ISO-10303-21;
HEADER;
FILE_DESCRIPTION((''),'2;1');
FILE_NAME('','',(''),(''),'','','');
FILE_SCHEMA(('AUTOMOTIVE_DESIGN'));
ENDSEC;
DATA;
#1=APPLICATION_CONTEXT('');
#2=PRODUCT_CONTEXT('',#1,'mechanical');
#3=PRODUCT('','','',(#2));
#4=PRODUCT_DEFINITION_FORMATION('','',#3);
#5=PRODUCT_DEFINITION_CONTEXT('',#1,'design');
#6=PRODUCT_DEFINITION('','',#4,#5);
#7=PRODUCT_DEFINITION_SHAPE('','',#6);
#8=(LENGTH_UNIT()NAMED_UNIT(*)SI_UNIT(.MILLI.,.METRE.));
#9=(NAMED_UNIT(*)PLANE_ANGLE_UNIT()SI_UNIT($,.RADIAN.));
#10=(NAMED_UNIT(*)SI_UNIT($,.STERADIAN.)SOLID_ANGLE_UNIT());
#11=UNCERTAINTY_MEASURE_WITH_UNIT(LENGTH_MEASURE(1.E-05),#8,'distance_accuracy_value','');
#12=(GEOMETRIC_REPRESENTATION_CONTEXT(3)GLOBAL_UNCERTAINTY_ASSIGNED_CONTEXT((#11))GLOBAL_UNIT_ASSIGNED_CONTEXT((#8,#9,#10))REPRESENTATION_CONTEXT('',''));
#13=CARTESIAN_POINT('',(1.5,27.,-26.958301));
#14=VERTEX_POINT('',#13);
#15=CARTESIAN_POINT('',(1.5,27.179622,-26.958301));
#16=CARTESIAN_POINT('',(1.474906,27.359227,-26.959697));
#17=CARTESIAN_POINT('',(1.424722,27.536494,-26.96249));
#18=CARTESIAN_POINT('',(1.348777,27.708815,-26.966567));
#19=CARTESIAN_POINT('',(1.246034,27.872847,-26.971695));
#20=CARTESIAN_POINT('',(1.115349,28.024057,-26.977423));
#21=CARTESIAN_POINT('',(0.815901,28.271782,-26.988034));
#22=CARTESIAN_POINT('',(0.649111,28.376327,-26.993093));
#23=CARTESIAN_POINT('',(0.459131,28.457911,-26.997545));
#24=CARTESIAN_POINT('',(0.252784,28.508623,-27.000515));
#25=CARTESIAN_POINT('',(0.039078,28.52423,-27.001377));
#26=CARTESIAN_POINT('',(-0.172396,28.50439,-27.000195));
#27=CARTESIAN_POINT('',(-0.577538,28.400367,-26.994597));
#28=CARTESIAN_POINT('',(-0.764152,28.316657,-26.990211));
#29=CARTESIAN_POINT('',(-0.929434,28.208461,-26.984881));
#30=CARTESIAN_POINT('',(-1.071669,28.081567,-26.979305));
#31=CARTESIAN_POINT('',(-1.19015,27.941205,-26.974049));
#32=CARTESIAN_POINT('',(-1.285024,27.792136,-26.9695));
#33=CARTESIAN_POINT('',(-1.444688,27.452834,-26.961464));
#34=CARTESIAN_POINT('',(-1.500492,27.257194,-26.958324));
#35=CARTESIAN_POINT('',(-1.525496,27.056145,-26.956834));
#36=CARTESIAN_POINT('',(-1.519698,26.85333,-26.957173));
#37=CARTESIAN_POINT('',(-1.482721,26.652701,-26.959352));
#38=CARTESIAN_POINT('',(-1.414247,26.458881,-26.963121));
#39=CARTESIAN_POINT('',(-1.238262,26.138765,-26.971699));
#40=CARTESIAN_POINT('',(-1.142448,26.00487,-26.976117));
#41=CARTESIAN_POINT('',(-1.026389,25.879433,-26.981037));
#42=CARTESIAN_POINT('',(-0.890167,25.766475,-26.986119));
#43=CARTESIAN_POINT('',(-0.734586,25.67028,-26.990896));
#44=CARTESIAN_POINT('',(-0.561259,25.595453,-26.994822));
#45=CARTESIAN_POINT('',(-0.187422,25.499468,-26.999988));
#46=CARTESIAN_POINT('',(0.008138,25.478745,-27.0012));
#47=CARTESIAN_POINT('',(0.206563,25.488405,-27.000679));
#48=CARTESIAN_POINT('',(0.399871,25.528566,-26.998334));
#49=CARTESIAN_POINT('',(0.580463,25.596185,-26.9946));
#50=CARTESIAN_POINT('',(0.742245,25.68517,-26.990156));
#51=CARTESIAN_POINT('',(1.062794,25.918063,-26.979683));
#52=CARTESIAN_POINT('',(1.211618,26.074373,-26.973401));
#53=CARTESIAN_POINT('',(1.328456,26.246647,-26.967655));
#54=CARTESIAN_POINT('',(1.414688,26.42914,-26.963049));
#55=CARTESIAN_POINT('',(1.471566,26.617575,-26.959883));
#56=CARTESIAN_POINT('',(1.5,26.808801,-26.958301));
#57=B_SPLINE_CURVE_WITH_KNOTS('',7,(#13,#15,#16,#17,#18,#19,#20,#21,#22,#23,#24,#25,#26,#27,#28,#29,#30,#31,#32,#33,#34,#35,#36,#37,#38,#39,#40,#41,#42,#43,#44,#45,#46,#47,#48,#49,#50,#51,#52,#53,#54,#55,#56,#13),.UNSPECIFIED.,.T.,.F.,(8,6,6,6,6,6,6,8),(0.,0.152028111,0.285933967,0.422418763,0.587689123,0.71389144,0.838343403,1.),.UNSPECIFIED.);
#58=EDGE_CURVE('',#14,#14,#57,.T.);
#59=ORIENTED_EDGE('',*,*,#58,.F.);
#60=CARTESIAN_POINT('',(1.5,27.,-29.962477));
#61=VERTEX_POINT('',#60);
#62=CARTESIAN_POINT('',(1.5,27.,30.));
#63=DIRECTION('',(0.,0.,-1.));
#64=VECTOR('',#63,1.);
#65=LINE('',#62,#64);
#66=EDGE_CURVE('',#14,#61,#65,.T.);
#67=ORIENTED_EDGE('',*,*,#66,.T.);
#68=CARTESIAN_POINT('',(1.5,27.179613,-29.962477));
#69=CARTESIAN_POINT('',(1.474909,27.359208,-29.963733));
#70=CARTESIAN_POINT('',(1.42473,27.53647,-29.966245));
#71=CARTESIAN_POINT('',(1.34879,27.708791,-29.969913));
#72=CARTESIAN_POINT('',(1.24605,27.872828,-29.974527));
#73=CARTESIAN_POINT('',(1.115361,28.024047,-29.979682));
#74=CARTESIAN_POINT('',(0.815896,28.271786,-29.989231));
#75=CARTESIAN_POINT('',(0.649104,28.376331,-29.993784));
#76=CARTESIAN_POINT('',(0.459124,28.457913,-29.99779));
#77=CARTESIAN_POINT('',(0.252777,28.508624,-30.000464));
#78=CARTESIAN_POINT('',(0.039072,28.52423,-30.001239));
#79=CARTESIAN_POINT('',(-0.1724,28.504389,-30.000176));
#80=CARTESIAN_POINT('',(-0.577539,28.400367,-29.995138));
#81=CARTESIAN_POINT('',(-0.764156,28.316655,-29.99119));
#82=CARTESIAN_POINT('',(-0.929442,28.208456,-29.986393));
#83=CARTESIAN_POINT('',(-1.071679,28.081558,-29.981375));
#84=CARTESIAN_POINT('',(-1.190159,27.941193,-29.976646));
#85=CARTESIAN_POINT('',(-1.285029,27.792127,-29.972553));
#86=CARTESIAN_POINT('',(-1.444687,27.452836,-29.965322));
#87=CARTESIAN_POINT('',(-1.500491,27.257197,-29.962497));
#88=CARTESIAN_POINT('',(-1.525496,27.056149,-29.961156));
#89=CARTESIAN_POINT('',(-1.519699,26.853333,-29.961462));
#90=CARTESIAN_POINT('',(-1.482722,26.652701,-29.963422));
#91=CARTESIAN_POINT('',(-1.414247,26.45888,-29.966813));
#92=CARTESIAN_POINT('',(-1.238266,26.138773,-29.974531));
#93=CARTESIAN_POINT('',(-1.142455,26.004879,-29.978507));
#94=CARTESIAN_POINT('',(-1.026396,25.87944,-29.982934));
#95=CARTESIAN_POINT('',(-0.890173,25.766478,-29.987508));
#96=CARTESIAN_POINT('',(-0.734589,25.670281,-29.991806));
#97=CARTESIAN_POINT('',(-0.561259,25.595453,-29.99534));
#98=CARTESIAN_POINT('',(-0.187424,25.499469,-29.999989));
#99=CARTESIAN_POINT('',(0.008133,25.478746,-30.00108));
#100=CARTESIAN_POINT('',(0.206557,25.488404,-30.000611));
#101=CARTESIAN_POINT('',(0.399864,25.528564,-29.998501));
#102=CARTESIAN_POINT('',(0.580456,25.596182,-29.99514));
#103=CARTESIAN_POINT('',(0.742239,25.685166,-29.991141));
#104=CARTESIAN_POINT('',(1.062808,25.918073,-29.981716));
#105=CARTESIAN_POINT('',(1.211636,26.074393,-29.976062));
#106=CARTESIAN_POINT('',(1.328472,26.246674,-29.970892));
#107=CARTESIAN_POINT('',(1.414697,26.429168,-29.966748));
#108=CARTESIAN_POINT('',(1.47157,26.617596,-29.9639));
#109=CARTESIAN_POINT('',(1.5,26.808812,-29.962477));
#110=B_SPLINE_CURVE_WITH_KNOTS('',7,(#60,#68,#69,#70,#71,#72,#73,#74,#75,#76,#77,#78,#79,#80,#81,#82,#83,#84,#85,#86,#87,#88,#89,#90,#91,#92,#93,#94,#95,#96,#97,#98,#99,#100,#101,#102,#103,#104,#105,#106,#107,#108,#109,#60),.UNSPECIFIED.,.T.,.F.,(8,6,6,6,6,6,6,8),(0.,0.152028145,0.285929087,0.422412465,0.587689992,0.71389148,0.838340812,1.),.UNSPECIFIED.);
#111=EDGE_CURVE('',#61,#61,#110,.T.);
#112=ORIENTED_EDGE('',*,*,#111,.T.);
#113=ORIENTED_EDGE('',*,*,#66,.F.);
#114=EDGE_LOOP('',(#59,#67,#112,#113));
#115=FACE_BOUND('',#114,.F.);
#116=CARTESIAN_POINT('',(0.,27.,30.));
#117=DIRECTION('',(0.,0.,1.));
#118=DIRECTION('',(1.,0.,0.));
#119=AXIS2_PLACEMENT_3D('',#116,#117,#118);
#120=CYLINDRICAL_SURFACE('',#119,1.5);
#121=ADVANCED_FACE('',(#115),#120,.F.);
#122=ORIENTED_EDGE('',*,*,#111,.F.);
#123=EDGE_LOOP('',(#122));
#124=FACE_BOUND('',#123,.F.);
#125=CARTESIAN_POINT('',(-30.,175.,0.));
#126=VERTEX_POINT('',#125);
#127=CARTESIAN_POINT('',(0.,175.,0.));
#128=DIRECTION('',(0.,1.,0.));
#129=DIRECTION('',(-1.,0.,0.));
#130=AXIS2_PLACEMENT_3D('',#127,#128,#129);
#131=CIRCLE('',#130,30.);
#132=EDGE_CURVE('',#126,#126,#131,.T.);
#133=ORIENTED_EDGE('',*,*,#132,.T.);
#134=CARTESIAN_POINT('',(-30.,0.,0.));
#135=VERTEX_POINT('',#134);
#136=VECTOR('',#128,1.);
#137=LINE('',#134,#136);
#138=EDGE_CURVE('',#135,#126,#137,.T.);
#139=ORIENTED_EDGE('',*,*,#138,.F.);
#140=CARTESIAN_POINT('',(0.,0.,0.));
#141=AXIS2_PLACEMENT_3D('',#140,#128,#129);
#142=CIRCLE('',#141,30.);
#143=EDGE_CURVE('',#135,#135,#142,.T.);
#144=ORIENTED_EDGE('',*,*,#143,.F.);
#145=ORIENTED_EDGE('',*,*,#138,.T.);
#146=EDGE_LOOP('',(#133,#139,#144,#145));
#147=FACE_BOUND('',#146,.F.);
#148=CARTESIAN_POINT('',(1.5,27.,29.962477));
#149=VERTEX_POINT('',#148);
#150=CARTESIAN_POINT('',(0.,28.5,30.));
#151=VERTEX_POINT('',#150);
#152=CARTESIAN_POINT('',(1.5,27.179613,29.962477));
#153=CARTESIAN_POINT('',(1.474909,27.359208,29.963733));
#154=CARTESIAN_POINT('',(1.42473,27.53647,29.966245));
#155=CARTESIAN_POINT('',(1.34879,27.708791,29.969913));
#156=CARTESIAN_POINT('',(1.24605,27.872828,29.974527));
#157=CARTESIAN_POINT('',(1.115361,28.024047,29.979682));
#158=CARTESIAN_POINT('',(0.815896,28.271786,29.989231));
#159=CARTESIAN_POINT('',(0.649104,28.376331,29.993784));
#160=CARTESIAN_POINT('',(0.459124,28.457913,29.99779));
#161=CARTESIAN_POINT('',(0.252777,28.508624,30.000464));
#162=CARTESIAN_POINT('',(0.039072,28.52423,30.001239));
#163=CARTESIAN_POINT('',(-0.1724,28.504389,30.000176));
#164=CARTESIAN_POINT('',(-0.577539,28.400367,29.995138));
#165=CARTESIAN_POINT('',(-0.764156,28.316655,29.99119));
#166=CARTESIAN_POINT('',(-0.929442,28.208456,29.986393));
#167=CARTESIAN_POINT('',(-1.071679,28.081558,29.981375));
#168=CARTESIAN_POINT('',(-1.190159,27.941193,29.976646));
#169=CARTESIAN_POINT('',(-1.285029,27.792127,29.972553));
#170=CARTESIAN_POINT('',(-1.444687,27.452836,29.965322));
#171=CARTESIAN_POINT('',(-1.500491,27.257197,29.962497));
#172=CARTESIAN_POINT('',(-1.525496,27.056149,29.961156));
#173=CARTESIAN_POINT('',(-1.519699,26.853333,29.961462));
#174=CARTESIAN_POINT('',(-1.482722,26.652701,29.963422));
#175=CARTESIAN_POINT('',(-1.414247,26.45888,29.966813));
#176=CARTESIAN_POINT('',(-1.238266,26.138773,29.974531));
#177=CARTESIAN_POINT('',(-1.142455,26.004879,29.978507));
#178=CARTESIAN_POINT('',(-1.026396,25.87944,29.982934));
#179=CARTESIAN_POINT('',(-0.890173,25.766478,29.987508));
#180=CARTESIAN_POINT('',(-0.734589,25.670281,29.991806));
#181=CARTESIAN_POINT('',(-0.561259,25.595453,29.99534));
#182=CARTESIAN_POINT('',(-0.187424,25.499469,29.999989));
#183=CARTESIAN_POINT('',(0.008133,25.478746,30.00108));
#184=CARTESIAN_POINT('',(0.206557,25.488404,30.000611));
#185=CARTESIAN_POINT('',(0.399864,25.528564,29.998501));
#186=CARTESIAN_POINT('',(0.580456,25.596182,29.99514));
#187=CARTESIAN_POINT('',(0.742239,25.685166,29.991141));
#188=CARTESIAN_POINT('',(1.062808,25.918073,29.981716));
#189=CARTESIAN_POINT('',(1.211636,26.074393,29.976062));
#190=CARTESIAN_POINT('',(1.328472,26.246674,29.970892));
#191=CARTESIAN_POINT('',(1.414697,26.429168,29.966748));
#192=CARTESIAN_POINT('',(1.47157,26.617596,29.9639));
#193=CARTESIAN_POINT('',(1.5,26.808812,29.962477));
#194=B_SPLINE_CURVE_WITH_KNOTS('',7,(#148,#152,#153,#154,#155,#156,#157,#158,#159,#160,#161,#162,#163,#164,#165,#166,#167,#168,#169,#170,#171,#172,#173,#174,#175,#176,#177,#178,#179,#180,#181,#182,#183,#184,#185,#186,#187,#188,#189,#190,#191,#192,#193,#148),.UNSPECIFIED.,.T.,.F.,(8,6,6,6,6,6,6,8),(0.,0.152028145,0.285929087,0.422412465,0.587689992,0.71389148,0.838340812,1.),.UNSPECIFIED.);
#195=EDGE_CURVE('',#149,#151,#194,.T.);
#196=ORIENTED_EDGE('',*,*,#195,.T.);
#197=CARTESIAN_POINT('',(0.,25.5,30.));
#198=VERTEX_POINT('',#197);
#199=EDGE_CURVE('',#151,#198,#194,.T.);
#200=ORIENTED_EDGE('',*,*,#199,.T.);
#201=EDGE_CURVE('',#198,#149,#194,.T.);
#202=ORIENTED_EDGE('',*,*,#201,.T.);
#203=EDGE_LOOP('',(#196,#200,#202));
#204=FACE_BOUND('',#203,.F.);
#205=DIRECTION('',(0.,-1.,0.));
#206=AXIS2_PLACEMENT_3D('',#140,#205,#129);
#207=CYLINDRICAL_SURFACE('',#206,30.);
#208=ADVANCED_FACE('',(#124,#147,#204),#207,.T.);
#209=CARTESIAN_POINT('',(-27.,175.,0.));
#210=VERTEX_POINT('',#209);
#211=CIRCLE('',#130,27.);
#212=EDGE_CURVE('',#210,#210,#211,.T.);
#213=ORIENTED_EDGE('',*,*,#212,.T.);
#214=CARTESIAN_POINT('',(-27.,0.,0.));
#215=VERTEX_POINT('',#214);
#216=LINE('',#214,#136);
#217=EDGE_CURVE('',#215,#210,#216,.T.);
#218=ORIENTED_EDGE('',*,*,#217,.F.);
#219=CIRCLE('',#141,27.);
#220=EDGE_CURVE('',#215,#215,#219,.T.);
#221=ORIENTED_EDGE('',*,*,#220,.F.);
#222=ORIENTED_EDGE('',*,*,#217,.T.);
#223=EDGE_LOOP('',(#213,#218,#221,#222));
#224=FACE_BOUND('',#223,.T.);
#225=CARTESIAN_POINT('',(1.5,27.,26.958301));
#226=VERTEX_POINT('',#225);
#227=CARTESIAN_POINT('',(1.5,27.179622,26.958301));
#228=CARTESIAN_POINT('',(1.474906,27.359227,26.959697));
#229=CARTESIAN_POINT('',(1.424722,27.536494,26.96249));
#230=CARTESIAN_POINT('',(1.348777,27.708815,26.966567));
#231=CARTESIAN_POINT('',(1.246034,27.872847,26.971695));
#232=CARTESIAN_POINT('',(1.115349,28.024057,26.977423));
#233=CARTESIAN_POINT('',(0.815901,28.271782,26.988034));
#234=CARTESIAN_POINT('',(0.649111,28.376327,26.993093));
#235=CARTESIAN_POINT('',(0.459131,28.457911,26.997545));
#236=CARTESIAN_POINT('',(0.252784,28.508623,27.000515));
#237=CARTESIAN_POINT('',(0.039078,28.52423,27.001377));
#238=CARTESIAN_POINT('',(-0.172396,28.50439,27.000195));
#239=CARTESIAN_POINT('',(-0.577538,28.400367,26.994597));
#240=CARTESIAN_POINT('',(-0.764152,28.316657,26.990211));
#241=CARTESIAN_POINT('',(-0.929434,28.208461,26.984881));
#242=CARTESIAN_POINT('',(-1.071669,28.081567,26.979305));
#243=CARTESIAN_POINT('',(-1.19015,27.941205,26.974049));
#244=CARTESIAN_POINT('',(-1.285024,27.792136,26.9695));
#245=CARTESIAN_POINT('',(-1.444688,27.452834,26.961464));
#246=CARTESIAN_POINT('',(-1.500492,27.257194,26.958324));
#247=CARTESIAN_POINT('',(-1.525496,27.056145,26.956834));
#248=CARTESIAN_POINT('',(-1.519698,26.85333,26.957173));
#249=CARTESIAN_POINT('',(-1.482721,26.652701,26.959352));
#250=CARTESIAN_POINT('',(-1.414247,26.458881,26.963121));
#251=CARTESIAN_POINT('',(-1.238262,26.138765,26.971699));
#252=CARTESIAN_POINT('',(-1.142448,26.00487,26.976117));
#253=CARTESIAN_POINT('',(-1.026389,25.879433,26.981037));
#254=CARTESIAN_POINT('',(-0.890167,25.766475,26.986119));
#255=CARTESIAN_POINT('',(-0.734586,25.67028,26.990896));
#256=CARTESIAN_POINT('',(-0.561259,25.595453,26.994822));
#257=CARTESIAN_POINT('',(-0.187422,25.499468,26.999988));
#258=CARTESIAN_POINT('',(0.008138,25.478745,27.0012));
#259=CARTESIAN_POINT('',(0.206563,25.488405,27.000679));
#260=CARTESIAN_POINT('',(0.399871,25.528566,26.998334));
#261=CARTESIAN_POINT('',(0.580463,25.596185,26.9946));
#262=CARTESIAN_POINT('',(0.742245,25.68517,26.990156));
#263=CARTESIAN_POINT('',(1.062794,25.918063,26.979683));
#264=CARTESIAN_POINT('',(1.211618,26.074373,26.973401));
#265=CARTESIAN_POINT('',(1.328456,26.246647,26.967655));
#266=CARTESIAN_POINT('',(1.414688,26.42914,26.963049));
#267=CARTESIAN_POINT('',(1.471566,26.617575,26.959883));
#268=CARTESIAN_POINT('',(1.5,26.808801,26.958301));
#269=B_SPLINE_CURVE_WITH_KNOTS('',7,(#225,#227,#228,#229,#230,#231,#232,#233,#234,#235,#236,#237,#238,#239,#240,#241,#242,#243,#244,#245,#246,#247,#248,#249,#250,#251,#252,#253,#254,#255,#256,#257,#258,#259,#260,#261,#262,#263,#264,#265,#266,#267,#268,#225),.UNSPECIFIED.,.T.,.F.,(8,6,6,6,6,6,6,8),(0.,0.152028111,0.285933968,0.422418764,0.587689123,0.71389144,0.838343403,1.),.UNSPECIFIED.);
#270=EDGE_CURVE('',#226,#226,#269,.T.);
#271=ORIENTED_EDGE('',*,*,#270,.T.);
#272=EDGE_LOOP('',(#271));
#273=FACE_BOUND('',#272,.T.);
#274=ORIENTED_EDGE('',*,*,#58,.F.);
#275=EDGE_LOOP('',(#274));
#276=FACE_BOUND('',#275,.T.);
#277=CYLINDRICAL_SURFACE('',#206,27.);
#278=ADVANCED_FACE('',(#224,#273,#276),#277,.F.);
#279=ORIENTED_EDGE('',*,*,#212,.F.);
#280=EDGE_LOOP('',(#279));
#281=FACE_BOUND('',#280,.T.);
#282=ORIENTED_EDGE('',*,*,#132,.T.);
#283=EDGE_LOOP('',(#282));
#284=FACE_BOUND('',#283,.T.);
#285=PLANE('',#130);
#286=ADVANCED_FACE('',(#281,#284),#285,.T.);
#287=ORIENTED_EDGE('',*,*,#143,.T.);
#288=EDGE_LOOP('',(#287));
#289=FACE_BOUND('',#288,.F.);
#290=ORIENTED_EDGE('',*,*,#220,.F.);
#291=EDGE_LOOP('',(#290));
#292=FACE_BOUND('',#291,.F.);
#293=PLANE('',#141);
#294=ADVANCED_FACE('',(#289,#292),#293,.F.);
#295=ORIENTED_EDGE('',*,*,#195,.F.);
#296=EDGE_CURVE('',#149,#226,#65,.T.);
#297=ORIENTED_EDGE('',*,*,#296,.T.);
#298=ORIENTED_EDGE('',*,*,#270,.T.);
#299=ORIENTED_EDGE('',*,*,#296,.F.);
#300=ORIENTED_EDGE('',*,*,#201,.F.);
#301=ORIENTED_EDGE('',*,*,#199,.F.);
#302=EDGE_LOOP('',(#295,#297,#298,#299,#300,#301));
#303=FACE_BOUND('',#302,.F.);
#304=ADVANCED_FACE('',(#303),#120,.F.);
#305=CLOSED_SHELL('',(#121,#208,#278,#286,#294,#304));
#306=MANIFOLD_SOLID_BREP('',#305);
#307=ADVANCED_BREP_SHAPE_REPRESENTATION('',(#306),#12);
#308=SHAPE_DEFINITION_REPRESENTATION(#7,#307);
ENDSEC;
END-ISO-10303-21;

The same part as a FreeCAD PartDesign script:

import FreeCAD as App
import Part
import Sketcher
Q = App.Units.Quantity

doc = App.newDocument("Part")
params = doc.addObject("Spreadsheet::Sheet", "Params")
for row, (alias, value) in enumerate([
    ("sketch1_diameter", "60 mm"),
    ("sketch1_diameter2", "54 mm"),
    ("pad1_length", "175 mm"),
    ("sketch2_diameter", "3 mm"),
], start=1):
    params.set(f"A{row}", alias)
    params.set(f"B{row}", "=" + value)
    params.setAlias(f"B{row}", alias)

body = doc.addObject("PartDesign::Body", "Body")

# Sketch on XZ plane
sketch1 = body.newObject("Sketcher::SketchObject", "Sketch")
sketch1.AttachmentSupport = (doc.getObject("XZ_Plane"), [""])
sketch1.MapMode = "FlatFace"
sketch1.addGeometry([
    Part.Circle(App.Vector(0, 0, 0), App.Vector(0, 0, 1), 30),
    Part.Circle(App.Vector(0, 0, 0), App.Vector(0, 0, 1), 27),
], False)
sketch1.addConstraint([
    Sketcher.Constraint("Coincident", 0, 3, -1, 1),
    Sketcher.Constraint("Coincident", 1, 3, -1, 1),
    Sketcher.Constraint("Diameter", 0, Q("60 mm")),
    Sketcher.Constraint("Diameter", 1, Q("54 mm")),
])
sketch1.setExpression("Constraints[2]", "Params.sketch1_diameter")
sketch1.setExpression("Constraints[3]", "Params.sketch1_diameter2")
pad1 = body.newObject("PartDesign::Pad", "Pad")
pad1.Profile = sketch1
pad1.setExpression("Length", "Params.pad1_length")
pad1.Reversed = True

# Sketch on XY plane
sketch2 = body.newObject("Sketcher::SketchObject", "Sketch001")
sketch2.AttachmentSupport = (doc.getObject("XY_Plane"), [""])
sketch2.MapMode = "FlatFace"
sketch2.AttachmentOffset = App.Placement(App.Vector(0, 0, 30), App.Rotation())
sketch2.addGeometry(Part.Circle(App.Vector(0, 27, 0), App.Vector(0, 0, 1), 1.5), False)
sketch2.addConstraint([
    Sketcher.Constraint("PointOnObject", 0, 3, -2),
    Sketcher.Constraint("Diameter", 0, Q("3 mm")),
    Sketcher.Constraint("DistanceY", -1, 1, 0, 3, Q("27 mm")),
])
sketch2.setExpression("Constraints[1]", "Params.sketch2_diameter")
pocket1 = body.newObject("PartDesign::Pocket", "Pocket")
pocket1.Profile = sketch2
pocket1.Type = "ThroughAll"

doc.recompute()
